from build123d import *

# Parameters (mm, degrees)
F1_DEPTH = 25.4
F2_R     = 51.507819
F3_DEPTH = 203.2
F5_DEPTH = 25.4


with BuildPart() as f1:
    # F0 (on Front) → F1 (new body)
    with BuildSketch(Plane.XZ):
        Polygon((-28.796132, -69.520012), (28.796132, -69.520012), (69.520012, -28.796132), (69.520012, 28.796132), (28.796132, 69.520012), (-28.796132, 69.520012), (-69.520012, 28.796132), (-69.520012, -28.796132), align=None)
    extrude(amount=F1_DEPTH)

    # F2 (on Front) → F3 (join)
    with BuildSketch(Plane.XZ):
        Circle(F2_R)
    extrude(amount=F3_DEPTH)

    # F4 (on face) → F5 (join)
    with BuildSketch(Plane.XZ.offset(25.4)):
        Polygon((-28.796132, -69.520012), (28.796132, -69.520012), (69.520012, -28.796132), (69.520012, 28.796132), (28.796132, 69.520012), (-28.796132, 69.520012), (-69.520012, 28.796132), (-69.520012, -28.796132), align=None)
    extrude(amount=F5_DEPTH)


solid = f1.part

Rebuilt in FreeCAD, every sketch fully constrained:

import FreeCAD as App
import Part
import Sketcher
from FreeCAD import Vector
Q = App.Units.Quantity


def add_polygon(sketch, points):
    """Adds a closed chain of lines whose ends are joined by coincident constraints."""
    first, n = sketch.GeometryCount, len(points)
    for a, b in zip(points, points[1:] + points[:1]):
        sketch.addGeometry(Part.LineSegment(App.Vector(*a, 0), App.Vector(*b, 0)), False)
    for i in range(n):
        sketch.addConstraint(Sketcher.Constraint("Coincident", first + i, 2, first + (i + 1) % n, 1))

doc = App.newDocument("Part")
body = doc.addObject("PartDesign::Body", "Body")

sketch1 = doc.addObject("Sketcher::SketchObject", "Sketch")
body.addObject(sketch1)
sketch1.AttachmentSupport = (doc.XZ_Plane, [""])
sketch1.MapMode = "FlatFace"
add_polygon(sketch1, [(-28.796132, -69.520012), (28.796132, -69.520012), (69.520012, -28.796132), (69.520012, 28.796132), (28.796132, 69.520012), (-28.796132, 69.520012), (-69.520012, 28.796132), (-69.520012, -28.796132)])
sketch1.addConstraint(Sketcher.Constraint("Horizontal", 0))
sketch1.addConstraint(Sketcher.Constraint("Vertical", 2))
sketch1.addConstraint(Sketcher.Constraint("Horizontal", 4))
sketch1.addConstraint(Sketcher.Constraint("Vertical", 6))
sketch1.addConstraint(Sketcher.Constraint("Symmetric", 0, 2, 4, 2, -1, 1))
sketch1.addConstraint(Sketcher.Constraint("Symmetric", 1, 2, 5, 2, -1, 1))
sketch1.addConstraint(Sketcher.Constraint("Perpendicular", 1, 3))
sketch1.addConstraint(Sketcher.Constraint("Perpendicular", 5, 7))
sketch1.addConstraint(Sketcher.Constraint("Horizontal", 2, 2, 5, 2))
sketch1.addConstraint(Sketcher.Constraint("Horizontal", 1, 2, 6, 2))
sketch1.addConstraint(Sketcher.Constraint("Vertical", 0, 2, 3, 2))
sketch1.addConstraint(Sketcher.Constraint("Equal", 4, 2))
sketch1.addConstraint(Sketcher.Constraint("DistanceX", 0, 1, 0, 2, 57.592264))
sketch1.addConstraint(Sketcher.Constraint("DistanceY", 0, 2, -1, 1, 69.520012))
pad1 = doc.addObject("PartDesign::Pad", "Pad")
body.addObject(pad1)
pad1.Profile = sketch1
pad1.Length = Q("1 in")

sketch2 = doc.addObject("Sketcher::SketchObject", "Sketch001")
body.addObject(sketch2)
sketch2.AttachmentSupport = (doc.XZ_Plane, [""])
sketch2.MapMode = "FlatFace"
sketch2.addGeometry(Part.Circle(Vector(0, 0, 0), Vector(0, 0, 1), 51.507819), False)
sketch2.addConstraint(Sketcher.Constraint("Coincident", 0, 3, -1, 1))
sketch2.addConstraint(Sketcher.Constraint("Diameter", 0, 103.015638))
pad2 = doc.addObject("PartDesign::Pad", "Pad001")
body.addObject(pad2)
pad2.Profile = sketch2
pad2.Length = Q("8 in")

sketch3 = doc.addObject("Sketcher::SketchObject", "Sketch002")
body.addObject(sketch3)
sketch3.AttachmentSupport = (doc.XZ_Plane, [""])
sketch3.MapMode = "FlatFace"
sketch3.AttachmentOffset = App.Placement(Vector(0, 0, 1 * 25.4), App.Rotation())
add_polygon(sketch3, [(-28.796132, -69.520012), (28.796132, -69.520012), (69.520012, -28.796132), (69.520012, 28.796132), (28.796132, 69.520012), (-28.796132, 69.520012), (-69.520012, 28.796132), (-69.520012, -28.796132)])
sketch3.addConstraint(Sketcher.Constraint("Horizontal", 0))
sketch3.addConstraint(Sketcher.Constraint("Vertical", 2))
sketch3.addConstraint(Sketcher.Constraint("Horizontal", 4))
sketch3.addConstraint(Sketcher.Constraint("Vertical", 6))
sketch3.addConstraint(Sketcher.Constraint("Symmetric", 0, 2, 4, 2, -1, 1))
sketch3.addConstraint(Sketcher.Constraint("Symmetric", 1, 2, 5, 2, -1, 1))
sketch3.addConstraint(Sketcher.Constraint("Perpendicular", 1, 3))
sketch3.addConstraint(Sketcher.Constraint("Perpendicular", 5, 7))
sketch3.addConstraint(Sketcher.Constraint("Horizontal", 2, 2, 5, 2))
sketch3.addConstraint(Sketcher.Constraint("Horizontal", 1, 2, 6, 2))
sketch3.addConstraint(Sketcher.Constraint("Vertical", 0, 2, 3, 2))
sketch3.addConstraint(Sketcher.Constraint("Equal", 4, 2))
sketch3.addConstraint(Sketcher.Constraint("DistanceX", 0, 1, 0, 2, 57.592264))
sketch3.addConstraint(Sketcher.Constraint("DistanceY", 0, 2, -1, 1, 69.520012))
pad3 = doc.addObject("PartDesign::Pad", "Pad002")
body.addObject(pad3)
pad3.Profile = sketch3
pad3.Length = Q("1 in")

doc.recompute()
